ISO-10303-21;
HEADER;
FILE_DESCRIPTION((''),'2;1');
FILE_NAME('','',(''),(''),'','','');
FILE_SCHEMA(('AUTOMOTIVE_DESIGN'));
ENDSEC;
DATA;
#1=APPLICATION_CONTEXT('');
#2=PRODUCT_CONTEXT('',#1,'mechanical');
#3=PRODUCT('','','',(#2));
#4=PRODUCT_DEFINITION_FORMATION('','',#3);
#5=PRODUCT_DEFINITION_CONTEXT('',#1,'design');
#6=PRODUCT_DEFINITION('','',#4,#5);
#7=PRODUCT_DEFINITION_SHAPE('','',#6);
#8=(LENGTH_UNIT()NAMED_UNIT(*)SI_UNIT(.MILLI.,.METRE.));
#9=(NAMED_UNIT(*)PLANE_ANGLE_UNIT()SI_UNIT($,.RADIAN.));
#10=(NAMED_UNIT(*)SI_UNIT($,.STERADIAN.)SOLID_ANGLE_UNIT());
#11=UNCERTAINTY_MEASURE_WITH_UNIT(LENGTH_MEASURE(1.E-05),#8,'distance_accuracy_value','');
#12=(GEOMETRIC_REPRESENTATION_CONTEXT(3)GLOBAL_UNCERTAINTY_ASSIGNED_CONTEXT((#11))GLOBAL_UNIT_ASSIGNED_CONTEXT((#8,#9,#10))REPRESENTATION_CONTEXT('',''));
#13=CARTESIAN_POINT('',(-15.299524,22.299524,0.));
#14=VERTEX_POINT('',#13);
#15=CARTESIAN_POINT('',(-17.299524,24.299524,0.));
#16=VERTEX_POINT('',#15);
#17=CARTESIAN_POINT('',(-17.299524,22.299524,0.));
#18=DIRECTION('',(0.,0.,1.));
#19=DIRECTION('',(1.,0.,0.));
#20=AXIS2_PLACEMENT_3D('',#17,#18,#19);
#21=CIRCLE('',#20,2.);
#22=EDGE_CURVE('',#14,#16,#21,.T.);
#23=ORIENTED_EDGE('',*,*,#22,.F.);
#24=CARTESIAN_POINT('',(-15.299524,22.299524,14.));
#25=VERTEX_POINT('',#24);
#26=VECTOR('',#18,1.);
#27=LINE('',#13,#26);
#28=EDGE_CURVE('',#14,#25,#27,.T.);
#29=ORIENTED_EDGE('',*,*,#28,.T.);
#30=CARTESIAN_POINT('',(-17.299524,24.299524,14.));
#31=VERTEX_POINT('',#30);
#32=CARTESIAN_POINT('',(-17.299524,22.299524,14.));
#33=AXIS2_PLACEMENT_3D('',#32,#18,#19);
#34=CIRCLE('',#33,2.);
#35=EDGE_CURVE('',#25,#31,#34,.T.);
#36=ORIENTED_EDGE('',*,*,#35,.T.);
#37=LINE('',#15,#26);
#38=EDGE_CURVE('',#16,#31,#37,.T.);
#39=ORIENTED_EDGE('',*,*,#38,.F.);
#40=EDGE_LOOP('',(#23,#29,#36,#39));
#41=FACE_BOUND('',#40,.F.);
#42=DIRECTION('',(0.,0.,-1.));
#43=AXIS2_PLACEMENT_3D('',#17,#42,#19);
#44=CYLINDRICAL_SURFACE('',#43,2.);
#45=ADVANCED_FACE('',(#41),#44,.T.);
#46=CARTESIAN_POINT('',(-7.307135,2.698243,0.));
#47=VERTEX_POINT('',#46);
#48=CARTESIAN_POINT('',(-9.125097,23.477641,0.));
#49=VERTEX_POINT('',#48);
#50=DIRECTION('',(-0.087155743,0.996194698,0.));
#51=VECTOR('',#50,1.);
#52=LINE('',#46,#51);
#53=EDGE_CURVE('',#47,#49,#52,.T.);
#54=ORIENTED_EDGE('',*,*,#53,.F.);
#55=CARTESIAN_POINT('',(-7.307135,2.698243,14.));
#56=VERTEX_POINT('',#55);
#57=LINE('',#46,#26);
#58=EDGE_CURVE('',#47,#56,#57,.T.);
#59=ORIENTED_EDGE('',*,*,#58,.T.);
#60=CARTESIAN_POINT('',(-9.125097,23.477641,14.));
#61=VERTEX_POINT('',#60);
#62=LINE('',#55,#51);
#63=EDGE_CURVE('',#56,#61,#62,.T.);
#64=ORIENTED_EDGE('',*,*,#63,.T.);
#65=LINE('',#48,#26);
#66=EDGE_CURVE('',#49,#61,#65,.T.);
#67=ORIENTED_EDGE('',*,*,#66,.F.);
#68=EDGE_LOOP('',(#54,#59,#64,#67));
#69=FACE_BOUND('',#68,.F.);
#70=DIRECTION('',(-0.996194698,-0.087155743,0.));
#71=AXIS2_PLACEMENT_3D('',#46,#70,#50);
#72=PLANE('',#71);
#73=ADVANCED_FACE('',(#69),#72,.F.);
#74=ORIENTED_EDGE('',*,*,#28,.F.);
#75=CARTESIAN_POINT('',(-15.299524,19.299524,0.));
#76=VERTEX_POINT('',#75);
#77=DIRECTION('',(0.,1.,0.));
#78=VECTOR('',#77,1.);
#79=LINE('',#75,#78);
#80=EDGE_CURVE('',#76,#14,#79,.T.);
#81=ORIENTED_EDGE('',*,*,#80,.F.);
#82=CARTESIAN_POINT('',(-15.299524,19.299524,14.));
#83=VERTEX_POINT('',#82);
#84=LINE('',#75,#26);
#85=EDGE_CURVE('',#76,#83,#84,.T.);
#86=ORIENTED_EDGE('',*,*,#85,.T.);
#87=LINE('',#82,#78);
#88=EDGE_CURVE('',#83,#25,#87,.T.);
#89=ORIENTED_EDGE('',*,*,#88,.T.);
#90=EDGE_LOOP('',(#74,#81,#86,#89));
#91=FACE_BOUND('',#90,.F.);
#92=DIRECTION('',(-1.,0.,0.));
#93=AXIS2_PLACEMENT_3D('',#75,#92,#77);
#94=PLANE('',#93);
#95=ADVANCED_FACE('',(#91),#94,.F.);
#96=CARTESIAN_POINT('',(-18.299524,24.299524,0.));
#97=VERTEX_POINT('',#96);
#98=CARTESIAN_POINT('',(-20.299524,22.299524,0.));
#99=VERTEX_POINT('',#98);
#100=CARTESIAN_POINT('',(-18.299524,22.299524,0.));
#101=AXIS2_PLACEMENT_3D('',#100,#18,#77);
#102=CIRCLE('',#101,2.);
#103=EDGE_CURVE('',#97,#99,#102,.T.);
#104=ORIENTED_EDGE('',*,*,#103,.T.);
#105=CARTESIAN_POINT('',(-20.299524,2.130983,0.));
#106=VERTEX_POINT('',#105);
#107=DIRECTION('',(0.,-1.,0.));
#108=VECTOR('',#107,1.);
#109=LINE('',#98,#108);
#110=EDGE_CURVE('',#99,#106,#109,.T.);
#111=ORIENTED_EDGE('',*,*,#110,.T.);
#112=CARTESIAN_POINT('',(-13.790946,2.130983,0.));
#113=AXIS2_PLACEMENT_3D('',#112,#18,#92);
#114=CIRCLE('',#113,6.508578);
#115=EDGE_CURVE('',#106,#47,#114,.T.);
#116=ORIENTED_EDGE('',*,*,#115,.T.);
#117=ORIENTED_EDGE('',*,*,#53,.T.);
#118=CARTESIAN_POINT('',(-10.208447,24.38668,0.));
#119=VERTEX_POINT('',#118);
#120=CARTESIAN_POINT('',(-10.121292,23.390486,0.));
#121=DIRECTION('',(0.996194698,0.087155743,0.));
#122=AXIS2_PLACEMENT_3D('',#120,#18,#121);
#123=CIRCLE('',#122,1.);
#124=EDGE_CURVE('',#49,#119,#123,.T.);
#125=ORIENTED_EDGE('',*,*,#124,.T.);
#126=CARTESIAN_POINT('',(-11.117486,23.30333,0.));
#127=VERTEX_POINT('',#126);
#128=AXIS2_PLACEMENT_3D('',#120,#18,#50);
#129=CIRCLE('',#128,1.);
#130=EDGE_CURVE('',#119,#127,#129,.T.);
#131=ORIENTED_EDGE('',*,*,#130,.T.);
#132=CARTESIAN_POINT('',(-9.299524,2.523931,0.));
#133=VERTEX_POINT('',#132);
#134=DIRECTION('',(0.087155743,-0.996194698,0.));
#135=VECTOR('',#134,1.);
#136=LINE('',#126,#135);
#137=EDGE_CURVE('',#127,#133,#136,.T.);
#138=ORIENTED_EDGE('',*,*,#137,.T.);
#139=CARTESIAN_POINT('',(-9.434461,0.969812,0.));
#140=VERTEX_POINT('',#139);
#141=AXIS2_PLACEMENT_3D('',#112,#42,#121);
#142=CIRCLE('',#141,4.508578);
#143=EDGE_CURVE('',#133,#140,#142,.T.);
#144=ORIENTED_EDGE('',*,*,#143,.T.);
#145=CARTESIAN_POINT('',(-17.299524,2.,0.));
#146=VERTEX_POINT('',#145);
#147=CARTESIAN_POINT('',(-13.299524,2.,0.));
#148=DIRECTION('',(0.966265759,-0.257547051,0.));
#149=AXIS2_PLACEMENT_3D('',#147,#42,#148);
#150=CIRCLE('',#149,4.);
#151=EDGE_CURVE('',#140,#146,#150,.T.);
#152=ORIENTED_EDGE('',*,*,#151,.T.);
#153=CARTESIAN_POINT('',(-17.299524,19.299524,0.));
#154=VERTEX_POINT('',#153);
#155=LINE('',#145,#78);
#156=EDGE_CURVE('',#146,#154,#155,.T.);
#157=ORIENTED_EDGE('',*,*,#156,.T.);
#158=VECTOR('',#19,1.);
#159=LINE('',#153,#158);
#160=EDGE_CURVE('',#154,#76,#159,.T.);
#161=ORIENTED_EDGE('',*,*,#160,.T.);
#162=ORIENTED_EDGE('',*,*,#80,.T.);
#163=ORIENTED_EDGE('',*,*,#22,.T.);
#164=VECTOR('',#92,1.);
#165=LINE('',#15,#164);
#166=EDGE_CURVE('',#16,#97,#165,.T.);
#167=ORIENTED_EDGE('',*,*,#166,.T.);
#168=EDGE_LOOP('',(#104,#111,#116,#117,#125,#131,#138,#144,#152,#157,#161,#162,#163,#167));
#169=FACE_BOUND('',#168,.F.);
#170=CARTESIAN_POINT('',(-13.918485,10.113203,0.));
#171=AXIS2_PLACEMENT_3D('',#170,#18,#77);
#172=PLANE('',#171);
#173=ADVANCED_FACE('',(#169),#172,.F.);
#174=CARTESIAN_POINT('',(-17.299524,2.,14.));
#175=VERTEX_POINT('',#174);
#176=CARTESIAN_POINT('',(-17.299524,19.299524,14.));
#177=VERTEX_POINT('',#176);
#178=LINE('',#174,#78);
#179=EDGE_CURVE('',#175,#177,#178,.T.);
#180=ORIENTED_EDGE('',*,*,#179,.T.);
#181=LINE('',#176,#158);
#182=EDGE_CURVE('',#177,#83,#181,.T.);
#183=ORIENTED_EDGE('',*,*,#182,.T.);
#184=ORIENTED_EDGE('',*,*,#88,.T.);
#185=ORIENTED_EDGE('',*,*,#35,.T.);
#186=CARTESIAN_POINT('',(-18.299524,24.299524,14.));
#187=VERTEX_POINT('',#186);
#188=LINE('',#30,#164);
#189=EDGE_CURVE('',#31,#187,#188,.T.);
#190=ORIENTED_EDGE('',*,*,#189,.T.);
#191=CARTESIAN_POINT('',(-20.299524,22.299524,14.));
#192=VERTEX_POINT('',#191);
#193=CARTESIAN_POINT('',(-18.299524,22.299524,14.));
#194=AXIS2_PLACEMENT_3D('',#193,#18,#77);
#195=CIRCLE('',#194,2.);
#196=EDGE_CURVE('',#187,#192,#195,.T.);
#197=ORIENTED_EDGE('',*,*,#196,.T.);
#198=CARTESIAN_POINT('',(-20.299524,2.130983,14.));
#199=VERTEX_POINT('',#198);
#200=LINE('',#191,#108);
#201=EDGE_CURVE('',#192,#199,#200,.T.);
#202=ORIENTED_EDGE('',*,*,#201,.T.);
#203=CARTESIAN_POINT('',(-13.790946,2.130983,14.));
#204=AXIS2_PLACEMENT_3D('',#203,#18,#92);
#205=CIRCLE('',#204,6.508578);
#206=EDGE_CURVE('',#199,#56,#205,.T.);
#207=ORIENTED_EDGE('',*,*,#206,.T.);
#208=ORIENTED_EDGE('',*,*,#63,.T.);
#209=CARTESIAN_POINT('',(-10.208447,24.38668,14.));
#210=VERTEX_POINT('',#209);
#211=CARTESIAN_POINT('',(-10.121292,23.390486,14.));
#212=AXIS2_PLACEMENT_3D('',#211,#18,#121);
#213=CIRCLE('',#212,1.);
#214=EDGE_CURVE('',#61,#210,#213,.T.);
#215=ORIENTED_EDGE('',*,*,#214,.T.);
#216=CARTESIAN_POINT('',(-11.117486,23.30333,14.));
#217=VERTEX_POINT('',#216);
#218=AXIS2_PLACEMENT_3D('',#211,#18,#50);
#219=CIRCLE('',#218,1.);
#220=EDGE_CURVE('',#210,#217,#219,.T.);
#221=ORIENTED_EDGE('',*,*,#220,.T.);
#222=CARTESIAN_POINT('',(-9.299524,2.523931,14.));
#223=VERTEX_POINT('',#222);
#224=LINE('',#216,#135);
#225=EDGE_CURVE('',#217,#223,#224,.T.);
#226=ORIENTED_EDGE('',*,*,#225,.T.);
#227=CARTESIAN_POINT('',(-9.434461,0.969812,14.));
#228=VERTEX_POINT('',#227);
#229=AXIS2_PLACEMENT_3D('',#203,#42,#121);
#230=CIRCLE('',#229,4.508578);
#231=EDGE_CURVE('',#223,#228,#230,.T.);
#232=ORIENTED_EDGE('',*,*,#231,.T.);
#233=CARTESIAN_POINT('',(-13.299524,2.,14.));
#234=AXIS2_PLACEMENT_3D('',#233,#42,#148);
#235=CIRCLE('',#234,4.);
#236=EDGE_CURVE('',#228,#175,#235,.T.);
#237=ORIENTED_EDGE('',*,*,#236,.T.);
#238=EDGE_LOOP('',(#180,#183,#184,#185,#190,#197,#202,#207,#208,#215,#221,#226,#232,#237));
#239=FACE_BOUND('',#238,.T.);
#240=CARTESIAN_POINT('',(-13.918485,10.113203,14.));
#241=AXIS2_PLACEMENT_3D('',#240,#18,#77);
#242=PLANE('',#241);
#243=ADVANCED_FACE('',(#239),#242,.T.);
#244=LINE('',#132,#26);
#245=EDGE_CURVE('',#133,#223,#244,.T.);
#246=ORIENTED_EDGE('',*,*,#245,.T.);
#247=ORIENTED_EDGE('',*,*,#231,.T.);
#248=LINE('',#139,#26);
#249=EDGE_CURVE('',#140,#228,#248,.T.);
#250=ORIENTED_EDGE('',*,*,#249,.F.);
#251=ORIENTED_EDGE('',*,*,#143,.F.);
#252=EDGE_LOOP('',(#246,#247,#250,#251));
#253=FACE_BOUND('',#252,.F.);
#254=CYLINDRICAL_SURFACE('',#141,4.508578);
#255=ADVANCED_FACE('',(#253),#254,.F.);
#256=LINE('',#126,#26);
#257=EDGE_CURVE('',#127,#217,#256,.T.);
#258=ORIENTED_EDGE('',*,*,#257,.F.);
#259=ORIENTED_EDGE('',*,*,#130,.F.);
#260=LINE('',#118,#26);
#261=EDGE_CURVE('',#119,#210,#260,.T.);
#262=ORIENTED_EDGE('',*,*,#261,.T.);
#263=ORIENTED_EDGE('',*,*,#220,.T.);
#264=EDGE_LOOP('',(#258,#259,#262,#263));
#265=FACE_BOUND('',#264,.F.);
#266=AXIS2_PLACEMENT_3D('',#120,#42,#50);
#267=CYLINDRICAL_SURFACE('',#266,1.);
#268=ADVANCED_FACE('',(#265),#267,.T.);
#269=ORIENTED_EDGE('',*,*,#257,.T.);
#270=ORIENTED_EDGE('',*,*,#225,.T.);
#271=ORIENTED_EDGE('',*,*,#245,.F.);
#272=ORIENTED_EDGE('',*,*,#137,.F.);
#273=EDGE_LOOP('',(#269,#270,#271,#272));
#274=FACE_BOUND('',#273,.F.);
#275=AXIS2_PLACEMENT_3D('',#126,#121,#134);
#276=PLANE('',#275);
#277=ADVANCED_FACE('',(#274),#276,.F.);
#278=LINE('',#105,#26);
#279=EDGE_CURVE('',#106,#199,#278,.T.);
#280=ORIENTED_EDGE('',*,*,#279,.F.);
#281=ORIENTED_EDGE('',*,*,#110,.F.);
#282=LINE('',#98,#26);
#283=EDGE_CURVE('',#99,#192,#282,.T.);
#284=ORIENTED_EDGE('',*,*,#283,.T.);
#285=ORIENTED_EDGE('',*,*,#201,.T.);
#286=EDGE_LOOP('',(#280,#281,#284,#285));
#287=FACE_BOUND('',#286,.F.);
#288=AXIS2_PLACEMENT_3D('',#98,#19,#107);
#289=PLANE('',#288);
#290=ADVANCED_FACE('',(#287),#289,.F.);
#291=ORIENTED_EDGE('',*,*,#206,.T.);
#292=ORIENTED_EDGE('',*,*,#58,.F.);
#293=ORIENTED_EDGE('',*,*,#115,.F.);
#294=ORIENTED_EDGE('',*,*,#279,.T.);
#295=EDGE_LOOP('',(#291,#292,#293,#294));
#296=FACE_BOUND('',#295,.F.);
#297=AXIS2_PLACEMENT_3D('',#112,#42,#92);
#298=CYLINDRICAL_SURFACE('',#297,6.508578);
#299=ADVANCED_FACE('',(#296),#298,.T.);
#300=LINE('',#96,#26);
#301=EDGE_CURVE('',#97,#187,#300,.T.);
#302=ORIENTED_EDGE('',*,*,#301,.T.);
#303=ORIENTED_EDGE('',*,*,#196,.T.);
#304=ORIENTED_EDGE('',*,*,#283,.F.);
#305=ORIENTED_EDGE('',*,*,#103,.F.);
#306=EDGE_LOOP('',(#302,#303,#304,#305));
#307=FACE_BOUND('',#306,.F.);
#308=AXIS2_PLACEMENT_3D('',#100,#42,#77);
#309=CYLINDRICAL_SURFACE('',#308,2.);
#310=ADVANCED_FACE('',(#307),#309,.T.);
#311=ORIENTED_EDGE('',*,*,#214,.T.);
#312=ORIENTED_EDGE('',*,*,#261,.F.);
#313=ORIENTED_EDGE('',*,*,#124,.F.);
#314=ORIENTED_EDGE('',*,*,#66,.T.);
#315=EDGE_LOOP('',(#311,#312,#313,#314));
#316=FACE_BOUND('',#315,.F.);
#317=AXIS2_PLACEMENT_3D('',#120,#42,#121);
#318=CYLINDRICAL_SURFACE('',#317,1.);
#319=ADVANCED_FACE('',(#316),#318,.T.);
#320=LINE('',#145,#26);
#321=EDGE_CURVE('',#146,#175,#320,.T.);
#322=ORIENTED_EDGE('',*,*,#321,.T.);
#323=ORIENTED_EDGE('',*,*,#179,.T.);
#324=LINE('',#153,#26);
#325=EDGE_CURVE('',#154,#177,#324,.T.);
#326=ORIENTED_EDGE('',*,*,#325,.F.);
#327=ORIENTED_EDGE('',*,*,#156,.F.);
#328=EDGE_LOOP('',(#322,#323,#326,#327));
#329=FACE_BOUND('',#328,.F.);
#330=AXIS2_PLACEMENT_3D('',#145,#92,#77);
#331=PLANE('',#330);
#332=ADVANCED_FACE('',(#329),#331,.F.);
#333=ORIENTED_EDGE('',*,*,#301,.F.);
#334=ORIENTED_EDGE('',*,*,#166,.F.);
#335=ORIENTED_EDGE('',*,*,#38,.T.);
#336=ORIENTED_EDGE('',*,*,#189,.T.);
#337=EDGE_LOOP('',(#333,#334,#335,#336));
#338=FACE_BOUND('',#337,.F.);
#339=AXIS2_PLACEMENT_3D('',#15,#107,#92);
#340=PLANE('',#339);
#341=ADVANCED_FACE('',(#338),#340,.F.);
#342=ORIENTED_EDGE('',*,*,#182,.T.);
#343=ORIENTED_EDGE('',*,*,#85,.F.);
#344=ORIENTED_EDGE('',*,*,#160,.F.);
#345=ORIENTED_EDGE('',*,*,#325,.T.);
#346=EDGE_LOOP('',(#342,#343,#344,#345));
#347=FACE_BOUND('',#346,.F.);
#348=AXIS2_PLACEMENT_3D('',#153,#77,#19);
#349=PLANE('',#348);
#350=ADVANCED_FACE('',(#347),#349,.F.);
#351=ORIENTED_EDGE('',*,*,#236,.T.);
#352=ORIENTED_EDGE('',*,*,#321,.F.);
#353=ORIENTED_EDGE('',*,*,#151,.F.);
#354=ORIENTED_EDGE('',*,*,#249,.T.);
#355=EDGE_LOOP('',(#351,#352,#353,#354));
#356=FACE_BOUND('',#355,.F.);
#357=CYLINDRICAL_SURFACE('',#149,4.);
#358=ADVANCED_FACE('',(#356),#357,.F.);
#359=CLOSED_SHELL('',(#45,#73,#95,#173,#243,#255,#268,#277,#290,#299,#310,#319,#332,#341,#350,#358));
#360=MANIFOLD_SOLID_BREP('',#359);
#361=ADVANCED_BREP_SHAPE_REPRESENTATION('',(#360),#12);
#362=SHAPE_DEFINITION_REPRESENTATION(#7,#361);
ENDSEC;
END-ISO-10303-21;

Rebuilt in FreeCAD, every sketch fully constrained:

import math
import FreeCAD as App
import Part
import Sketcher
Q = App.Units.Quantity

doc = App.newDocument("Part")
body = doc.addObject("PartDesign::Body", "Body")

# Sketch on XY plane
sketch1 = body.newObject("Sketcher::SketchObject", "Sketch")
sketch1.AttachmentSupport = (doc.getObject("XY_Plane"), [""])
sketch1.MapMode = "FlatFace"
sketch1.addGeometry(Part.LineSegment(App.Vector(0, 2, 0), App.Vector(0, 0, 0)), False)
sketch1.addGeometry(Part.LineSegment(App.Vector(0, 0, 0), App.Vector(3, 0, 0)), False)
sketch1.addGeometry(Part.ArcOfCircle(Part.Circle(App.Vector(3, 2, 0), App.Vector(0, 0, 1), 2), math.radians(-90), math.radians(0)), False)
sketch1.addGeometry(Part.LineSegment(App.Vector(5, 2, 0), App.Vector(5, 3, 0)), False)
sketch1.addGeometry(Part.ArcOfCircle(Part.Circle(App.Vector(3, 3, 0), App.Vector(0, 0, 1), 2), math.radians(0), math.radians(90)), False)
sketch1.addGeometry(Part.LineSegment(App.Vector(3, 5, 0), App.Vector(-17.2, 5, 0)), False)
sketch1.addGeometry(Part.ArcOfCircle(Part.Circle(App.Vector(-17.2, -1.5, 0), App.Vector(0, 0, 1), 6.5), math.radians(90), math.radians(275)), False)
sketch1.addGeometry(Part.LineSegment(App.Vector(-16.6, -8, 0), App.Vector(4.2, -6.2, 0)), False)
sketch1.addGeometry(Part.ArcOfCircle(Part.Circle(App.Vector(4.1, -5.2, 0), App.Vector(0, 0, 1), 1), math.radians(-85), math.radians(5)), False)
sketch1.addGeometry(Part.ArcOfCircle(Part.Circle(App.Vector(4.1, -5.2, 0), App.Vector(0, 0, 1), 1), math.radians(5), math.radians(95)), False)
sketch1.addGeometry(Part.LineSegment(App.Vector(4, -4.2, 0), App.Vector(-16.8, -6, 0)), False)
sketch1.addGeometry(Part.ArcOfCircle(Part.Circle(App.Vector(-17.2, -1.5, 0), App.Vector(0, 0, 1), 4.5), math.radians(-104.92), math.radians(-85)), False)
sketch1.addGeometry(Part.ArcOfCircle(Part.Circle(App.Vector(-17.3, -2, 0), App.Vector(0, 0, 1), 4), math.radians(90), math.radians(255)), False)
sketch1.addGeometry(Part.LineSegment(App.Vector(-17.3, 2, 0), App.Vector(0, 2, 0)), False)
sketch1.addConstraint(Sketcher.Constraint("Coincident", 0, 2, 1, 1))
sketch1.addConstraint(Sketcher.Constraint("Tangent", 1, 2, 2, 1))
sketch1.addConstraint(Sketcher.Constraint("Tangent", 2, 2, 3, 1))
sketch1.addConstraint(Sketcher.Constraint("Tangent", 3, 2, 4, 1))
sketch1.addConstraint(Sketcher.Constraint("Tangent", 4, 2, 5, 1))
sketch1.addConstraint(Sketcher.Constraint("Tangent", 5, 2, 6, 1))
sketch1.addConstraint(Sketcher.Constraint("Tangent", 6, 2, 7, 1))
sketch1.addConstraint(Sketcher.Constraint("Tangent", 7, 2, 8, 1))
sketch1.addConstraint(Sketcher.Constraint("Tangent", 8, 2, 9, 1))
sketch1.addConstraint(Sketcher.Constraint("Tangent", 9, 2, 10, 1))
sketch1.addConstraint(Sketcher.Constraint("Tangent", 10, 2, 11, 2))
sketch1.addConstraint(Sketcher.Constraint("Tangent", 11, 1, 12, 2))
sketch1.addConstraint(Sketcher.Constraint("Tangent", 12, 1, 13, 1))
sketch1.addConstraint(Sketcher.Constraint("Coincident", 13, 2, 0, 1))
sketch1.addConstraint(Sketcher.Constraint("Vertical", 0))
sketch1.addConstraint(Sketcher.Constraint("Horizontal", 1))
sketch1.addConstraint(Sketcher.Constraint("Vertical", 3))
sketch1.addConstraint(Sketcher.Constraint("Horizontal", 5))
sketch1.addConstraint(Sketcher.Constraint("Horizontal", 13))
sketch1.addConstraint(Sketcher.Constraint("Coincident", 0, 2, -1, 1))
sketch1.addConstraint(Sketcher.Constraint("Coincident", 11, 3, 6, 3))
sketch1.addConstraint(Sketcher.Constraint("Equal", 2, 4))
sketch1.addConstraint(Sketcher.Constraint("Equal", 8, 9))
sketch1.addConstraint(Sketcher.Constraint("Parallel", 7, 10))
sketch1.addConstraint(Sketcher.Constraint("Horizontal", 2, 2, 12, 1))
sketch1.addConstraint(Sketcher.Constraint("Radius", 2, 2.0))
sketch1.addConstraint(Sketcher.Constraint("Radius", 8, 1.0))
sketch1.addConstraint(Sketcher.Constraint("Radius", 12, 4.0))
sketch1.addConstraint(Sketcher.Constraint("DistanceX", 1, 1, 1, 2, 3.0))
sketch1.addConstraint(Sketcher.Constraint("DistanceY", 3, 1, 3, 2, 1.0))
sketch1.addConstraint(Sketcher.Constraint("Angle", 7, Q("5 deg")))
sketch1.addConstraint(Sketcher.Constraint("DistanceY", 10, 2, -1, 1, 6.0))
sketch1.addConstraint(Sketcher.Constraint("DistanceX", 5, 2, 5, 1, 20.168542))
sketch1.addConstraint(Sketcher.Constraint("DistanceX", -1, 1, 8, 3, 4.090961))
sketch1.addConstraint(Sketcher.Constraint("DistanceX", 7, 2, 8, 2, 0.909039))
pad1 = body.newObject("PartDesign::Pad", "Pad")
pad1.Profile = sketch1
pad1.Length = 14
body2 = doc.addObject("PartDesign::Body", "Body001")
doc.recompute()

body.Placement = App.Placement(App.Vector(-15.299524, 19.299524, 0), App.Rotation(App.Vector(0, 0, -1), 270))
boolean = body2.newObject("PartDesign::Boolean", "Boolean")
boolean.Type = "Fuse"
boolean.addObjects([body])

doc.recompute()
